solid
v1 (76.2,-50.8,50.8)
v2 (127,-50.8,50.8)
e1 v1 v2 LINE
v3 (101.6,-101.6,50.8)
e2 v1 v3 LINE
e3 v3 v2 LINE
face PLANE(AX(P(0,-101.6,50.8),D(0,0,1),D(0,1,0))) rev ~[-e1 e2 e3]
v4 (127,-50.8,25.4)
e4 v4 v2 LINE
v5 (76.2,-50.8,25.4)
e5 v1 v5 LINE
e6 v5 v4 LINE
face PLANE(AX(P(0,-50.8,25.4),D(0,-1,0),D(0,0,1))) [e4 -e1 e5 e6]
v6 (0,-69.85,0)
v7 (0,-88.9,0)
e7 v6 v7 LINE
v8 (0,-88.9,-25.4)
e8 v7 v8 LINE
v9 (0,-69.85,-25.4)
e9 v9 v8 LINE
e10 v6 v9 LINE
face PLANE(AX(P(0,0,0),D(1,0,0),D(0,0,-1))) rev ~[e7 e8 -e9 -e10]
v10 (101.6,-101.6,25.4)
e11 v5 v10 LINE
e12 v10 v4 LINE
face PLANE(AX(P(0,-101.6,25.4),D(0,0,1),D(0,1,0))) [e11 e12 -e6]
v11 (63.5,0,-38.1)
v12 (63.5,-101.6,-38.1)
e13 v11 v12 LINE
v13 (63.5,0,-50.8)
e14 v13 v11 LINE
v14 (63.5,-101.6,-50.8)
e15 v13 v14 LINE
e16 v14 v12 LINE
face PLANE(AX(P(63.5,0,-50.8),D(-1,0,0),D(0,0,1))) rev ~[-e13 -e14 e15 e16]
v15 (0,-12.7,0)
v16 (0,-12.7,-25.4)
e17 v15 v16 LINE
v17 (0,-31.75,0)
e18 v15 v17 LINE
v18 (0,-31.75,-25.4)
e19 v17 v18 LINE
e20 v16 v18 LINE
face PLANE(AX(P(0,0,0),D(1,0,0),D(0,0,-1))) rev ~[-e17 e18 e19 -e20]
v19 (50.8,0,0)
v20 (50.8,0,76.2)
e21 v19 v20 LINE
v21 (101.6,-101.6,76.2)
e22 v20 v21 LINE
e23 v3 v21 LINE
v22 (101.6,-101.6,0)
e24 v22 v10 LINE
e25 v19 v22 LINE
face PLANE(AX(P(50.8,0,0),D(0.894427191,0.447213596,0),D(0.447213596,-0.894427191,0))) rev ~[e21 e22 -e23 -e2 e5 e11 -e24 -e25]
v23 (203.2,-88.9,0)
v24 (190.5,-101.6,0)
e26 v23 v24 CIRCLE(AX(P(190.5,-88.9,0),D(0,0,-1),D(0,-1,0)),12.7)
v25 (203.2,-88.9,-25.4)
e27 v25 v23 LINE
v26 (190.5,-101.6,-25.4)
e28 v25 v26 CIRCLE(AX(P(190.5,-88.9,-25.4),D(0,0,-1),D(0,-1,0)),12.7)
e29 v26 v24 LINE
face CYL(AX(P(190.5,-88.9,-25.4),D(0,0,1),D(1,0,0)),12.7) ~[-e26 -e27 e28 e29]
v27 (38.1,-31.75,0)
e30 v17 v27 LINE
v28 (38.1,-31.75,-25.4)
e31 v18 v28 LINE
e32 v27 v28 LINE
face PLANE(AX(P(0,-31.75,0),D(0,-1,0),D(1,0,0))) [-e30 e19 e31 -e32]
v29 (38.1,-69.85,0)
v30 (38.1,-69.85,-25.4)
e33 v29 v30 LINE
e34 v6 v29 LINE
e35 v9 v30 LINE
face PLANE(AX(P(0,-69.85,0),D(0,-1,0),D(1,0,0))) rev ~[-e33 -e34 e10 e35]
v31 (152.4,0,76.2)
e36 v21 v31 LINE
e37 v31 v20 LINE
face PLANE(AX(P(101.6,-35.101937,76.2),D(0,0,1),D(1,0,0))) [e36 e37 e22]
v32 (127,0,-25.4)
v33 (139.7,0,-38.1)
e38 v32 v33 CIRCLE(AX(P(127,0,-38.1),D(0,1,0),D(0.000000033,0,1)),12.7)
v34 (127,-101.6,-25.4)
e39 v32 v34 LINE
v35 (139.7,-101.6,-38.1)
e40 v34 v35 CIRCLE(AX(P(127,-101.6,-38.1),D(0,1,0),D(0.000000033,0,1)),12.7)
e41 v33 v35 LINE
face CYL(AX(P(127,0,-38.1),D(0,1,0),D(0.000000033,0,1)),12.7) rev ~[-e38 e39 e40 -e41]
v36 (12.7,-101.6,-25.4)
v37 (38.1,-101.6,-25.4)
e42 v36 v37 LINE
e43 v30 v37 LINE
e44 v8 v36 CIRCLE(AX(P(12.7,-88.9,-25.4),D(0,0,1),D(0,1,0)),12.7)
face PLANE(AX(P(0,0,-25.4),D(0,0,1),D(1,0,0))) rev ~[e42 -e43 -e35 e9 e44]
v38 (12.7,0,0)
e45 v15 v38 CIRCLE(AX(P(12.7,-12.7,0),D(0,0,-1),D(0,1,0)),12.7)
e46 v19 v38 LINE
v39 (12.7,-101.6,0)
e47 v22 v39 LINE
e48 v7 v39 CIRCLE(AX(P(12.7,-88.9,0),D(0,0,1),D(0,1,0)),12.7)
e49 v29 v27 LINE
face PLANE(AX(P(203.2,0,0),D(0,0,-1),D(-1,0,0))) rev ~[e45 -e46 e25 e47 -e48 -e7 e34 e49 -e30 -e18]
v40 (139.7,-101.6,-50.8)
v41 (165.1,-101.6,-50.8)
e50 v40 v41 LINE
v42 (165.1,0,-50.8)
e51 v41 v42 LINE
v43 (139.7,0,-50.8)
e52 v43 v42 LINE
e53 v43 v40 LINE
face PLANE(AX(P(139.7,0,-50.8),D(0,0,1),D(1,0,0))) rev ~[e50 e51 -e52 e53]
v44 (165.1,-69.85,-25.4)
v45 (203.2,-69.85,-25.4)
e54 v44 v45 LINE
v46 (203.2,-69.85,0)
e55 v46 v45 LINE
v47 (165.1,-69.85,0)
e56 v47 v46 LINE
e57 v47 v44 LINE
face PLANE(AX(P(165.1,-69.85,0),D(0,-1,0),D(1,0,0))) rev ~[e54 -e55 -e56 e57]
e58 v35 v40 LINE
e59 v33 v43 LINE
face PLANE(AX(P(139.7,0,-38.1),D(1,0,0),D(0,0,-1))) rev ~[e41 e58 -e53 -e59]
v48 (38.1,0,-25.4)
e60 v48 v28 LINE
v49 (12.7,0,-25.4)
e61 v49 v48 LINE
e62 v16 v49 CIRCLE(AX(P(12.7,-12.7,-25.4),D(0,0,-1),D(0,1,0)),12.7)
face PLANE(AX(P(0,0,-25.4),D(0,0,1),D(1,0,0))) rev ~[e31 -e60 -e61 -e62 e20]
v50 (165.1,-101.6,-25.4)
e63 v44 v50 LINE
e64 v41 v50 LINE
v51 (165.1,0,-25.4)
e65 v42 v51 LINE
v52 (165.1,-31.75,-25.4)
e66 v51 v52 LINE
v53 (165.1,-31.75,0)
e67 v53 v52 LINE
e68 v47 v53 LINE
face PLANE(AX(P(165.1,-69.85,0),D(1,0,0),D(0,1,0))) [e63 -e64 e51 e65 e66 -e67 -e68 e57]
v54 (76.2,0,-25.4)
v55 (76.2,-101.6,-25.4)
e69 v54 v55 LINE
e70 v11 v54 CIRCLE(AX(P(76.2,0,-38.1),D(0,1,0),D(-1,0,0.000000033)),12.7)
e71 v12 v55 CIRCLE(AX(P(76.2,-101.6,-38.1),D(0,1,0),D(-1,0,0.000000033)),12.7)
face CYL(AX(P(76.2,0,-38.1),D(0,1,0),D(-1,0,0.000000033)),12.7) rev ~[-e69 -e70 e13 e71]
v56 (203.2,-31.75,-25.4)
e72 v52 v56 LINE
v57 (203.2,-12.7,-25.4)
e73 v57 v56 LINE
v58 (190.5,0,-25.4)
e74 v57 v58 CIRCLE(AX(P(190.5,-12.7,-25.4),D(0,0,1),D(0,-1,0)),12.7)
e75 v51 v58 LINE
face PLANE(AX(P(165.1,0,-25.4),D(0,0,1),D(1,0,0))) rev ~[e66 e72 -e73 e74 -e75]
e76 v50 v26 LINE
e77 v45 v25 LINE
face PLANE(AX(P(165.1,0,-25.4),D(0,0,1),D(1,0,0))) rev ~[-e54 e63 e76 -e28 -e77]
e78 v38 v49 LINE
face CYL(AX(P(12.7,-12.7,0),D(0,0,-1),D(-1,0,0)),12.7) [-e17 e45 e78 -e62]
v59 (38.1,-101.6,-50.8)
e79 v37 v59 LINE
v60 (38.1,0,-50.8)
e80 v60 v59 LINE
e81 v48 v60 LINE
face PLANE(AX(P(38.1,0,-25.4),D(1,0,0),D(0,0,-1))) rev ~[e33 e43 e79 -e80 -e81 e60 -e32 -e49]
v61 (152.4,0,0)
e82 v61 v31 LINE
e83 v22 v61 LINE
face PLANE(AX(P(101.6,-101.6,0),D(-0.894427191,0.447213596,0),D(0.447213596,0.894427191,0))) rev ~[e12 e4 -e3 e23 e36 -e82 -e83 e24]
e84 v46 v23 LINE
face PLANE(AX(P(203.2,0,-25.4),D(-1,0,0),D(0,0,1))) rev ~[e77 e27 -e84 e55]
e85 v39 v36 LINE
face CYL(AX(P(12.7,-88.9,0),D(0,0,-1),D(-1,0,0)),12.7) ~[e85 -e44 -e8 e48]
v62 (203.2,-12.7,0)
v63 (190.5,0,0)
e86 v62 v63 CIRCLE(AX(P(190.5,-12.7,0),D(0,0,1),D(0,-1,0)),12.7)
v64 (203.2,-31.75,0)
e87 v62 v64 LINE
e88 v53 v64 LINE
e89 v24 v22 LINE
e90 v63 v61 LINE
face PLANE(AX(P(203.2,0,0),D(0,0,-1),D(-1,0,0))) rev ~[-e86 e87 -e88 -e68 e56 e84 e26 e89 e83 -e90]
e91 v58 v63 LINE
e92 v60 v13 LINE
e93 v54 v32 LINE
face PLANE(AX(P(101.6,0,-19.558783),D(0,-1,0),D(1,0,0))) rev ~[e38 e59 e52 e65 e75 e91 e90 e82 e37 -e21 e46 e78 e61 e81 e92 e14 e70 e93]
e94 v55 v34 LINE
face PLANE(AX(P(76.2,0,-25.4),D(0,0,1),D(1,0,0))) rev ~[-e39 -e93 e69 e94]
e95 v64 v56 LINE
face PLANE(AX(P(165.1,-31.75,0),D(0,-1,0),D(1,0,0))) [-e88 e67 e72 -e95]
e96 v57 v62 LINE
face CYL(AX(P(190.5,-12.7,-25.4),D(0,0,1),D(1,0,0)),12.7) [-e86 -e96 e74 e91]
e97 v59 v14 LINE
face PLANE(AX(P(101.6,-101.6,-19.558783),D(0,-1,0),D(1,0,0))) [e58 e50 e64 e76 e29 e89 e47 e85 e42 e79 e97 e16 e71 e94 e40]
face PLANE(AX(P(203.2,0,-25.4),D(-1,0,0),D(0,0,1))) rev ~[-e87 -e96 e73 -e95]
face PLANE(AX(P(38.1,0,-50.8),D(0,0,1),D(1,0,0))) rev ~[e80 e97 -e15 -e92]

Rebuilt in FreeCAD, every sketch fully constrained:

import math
import FreeCAD as App
import Part
import Sketcher
from FreeCAD import Vector
Q = App.Units.Quantity


def edges_at(feature, points):
    """Names of the edges that pass closest to the given points."""
    edges = feature.Shape.Edges
    near = lambda p: min(range(len(edges)), key=lambda i: edges[i].distToShape(Part.Vertex(*p))[0])
    return sorted({f"Edge{near(p) + 1}" for p in points})


def add_polygon(sketch, points):
    """Adds a closed chain of lines whose ends are joined by coincident constraints."""
    first, n = sketch.GeometryCount, len(points)
    for a, b in zip(points, points[1:] + points[:1]):
        sketch.addGeometry(Part.LineSegment(App.Vector(*a, 0), App.Vector(*b, 0)), False)
    for i in range(n):
        sketch.addConstraint(Sketcher.Constraint("Coincident", first + i, 2, first + (i + 1) % n, 1))

doc = App.newDocument("Part")
body = doc.addObject("PartDesign::Body", "Body")

sketch1 = doc.addObject("Sketcher::SketchObject", "Sketch")
body.addObject(sketch1)
sketch1.AttachmentSupport = (doc.XZ_Plane, [""])
sketch1.MapMode = "FlatFace"
sketch1.addGeometry([
    Part.LineSegment(Vector(203, 0, 0), Vector(0, 0, 0)),
    Part.LineSegment(Vector(0, 0, 0), Vector(0, -25, 0)),
    Part.LineSegment(Vector(0, -25, 0), Vector(38, -25, 0)),
    Part.LineSegment(Vector(38, -25, 0), Vector(38, -51, 0)),
    Part.LineSegment(Vector(38, -51, 0), Vector(64, -51, 0)),
    Part.LineSegment(Vector(64, -51, 0), Vector(64, -38, 0)),
    Part.ArcOfCircle(Part.Circle(Vector(76, -38, 0), Vector(0, 0, 1), 13), math.radians(90), math.radians(180)),
    Part.LineSegment(Vector(76, -25, 0), Vector(127, -25, 0)),
    Part.ArcOfCircle(Part.Circle(Vector(127, -38, 0), Vector(0, 0, 1), 13), math.radians(0), math.radians(90)),
    Part.LineSegment(Vector(140, -38, 0), Vector(140, -51, 0)),
    Part.LineSegment(Vector(140, -51, 0), Vector(165, -51, 0)),
    Part.LineSegment(Vector(165, -51, 0), Vector(165, -25, 0)),
    Part.LineSegment(Vector(165, -25, 0), Vector(203, -25, 0)),
    Part.LineSegment(Vector(203, -25, 0), Vector(203, 0, 0)),
], False)
sketch1.addConstraint([
    Sketcher.Constraint("Coincident", 0, 2, 1, 1),
    Sketcher.Constraint("Coincident", 1, 2, 2, 1),
    Sketcher.Constraint("Coincident", 2, 2, 3, 1),
    Sketcher.Constraint("Coincident", 3, 2, 4, 1),
    Sketcher.Constraint("Coincident", 4, 2, 5, 1),
    Sketcher.Constraint("Tangent", 5, 2, 6, 2),
    Sketcher.Constraint("Tangent", 6, 1, 7, 1),
    Sketcher.Constraint("Tangent", 7, 2, 8, 2),
    Sketcher.Constraint("Tangent", 8, 1, 9, 1),
    Sketcher.Constraint("Coincident", 9, 2, 10, 1),
    Sketcher.Constraint("Coincident", 10, 2, 11, 1),
    Sketcher.Constraint("Coincident", 11, 2, 12, 1),
    Sketcher.Constraint("Coincident", 12, 2, 13, 1),
    Sketcher.Constraint("Coincident", 13, 2, 0, 1),
    Sketcher.Constraint("Horizontal", 0),
    Sketcher.Constraint("Vertical", 1),
    Sketcher.Constraint("Horizontal", 2),
    Sketcher.Constraint("Vertical", 3),
    Sketcher.Constraint("Horizontal", 4),
    Sketcher.Constraint("Vertical", 5),
    Sketcher.Constraint("Horizontal", 7),
    Sketcher.Constraint("Vertical", 9),
    Sketcher.Constraint("Horizontal", 10),
    Sketcher.Constraint("Vertical", 11),
    Sketcher.Constraint("Horizontal", 12),
    Sketcher.Constraint("Vertical", 13),
    Sketcher.Constraint("Coincident", 0, 2, -1, 1),
    Sketcher.Constraint("Equal", 6, 8),
    Sketcher.Constraint("Horizontal", 2, 2, 6, 1),
    Sketcher.Constraint("Horizontal", 4, 2, 9, 2),
    Sketcher.Constraint("Horizontal", 7, 2, 11, 2),
    Sketcher.Constraint("Equal", 4, 10),
    Sketcher.Constraint("Equal", 2, 12),
    Sketcher.Constraint("Equal", 10, 1),
    Sketcher.Constraint("Equal", 1, 3),
    Sketcher.Constraint("Radius", 6, Q("0.5 in")),
    Sketcher.Constraint("DistanceX", 0, 2, 0, 1, Q("8 in")),
    Sketcher.Constraint("DistanceX", 4, 1, 4, 2, Q("1 in")),
    Sketcher.Constraint("DistanceX", 7, 1, 7, 2, Q("2 in")),
])
pad1 = doc.addObject("PartDesign::Pad", "Pad")
body.addObject(pad1)
pad1.Profile = sketch1
pad1.Length = Q("4 in")

sketch2 = doc.addObject("Sketcher::SketchObject", "Sketch001")
body.addObject(sketch2)
sketch2.AttachmentSupport = (doc.XY_Plane, [""])
sketch2.MapMode = "FlatFace"
add_polygon(sketch2, [(152, 0), (51, 0), (102, -102)])
sketch2.addConstraint([
    Sketcher.Constraint("Horizontal", 0),
    Sketcher.Constraint("PointOnObject", 0, 2, -1),
    Sketcher.Constraint("Equal", 1, 2),
    Sketcher.Constraint("DistanceX", 0, 2, 0, 1, Q("4 in")),
    Sketcher.Constraint("DistanceX", -1, 1, 0, 2, Q("2 in")),
    Sketcher.Constraint("DistanceY", 1, 2, -1, 1, Q("4 in")),
])
pad2 = doc.addObject("PartDesign::Pad", "Pad001")
body.addObject(pad2)
pad2.Profile = sketch2
pad2.Length = Q("3 in")

sketch3 = doc.addObject("Sketcher::SketchObject", "Sketch002")
body.addObject(sketch3)
sketch3.AttachmentSupport = (doc.YZ_Plane, [""])
sketch3.MapMode = "FlatFace"
add_polygon(sketch3, [(-102, 51), (-102, 25), (-51, 25), (-51, 51)])
sketch3.addConstraint([
    Sketcher.Constraint("Vertical", 0),
    Sketcher.Constraint("Horizontal", 1),
    Sketcher.Constraint("Vertical", 2),
    Sketcher.Constraint("Horizontal", 3),
    Sketcher.Constraint("DistanceX", 1, 1, 1, 2, Q("2 in")),
    Sketcher.Constraint("DistanceY", 0, 2, 0, 1, Q("1 in")),
    Sketcher.Constraint("DistanceX", 0, 2, -1, 1, Q("4 in")),
    Sketcher.Constraint("DistanceY", -1, 1, 0, 2, Q("1 in")),
])
pocket1 = doc.addObject("PartDesign::Pocket", "Pocket")
body.addObject(pocket1)
pocket1.Profile = sketch3
pocket1.Type = "ThroughAll"
pocket1.Reversed = True

sketch4 = doc.addObject("Sketcher::SketchObject", "Sketch003")
body.addObject(sketch4)
sketch4.AttachmentSupport = (doc.XY_Plane, [""])
sketch4.MapMode = "FlatFace"
add_polygon(sketch4, [(0, -32), (0, -70), (38, -70), (38, -32)])
add_polygon(sketch4, [(165, -32), (165, -70), (203, -70), (203, -32)])
sketch4.addConstraint([
    Sketcher.Constraint("Vertical", 0),
    Sketcher.Constraint("Horizontal", 1),
    Sketcher.Constraint("Vertical", 2),
    Sketcher.Constraint("Horizontal", 3),
    Sketcher.Constraint("Vertical", 4),
    Sketcher.Constraint("Horizontal", 5),
    Sketcher.Constraint("Vertical", 6),
    Sketcher.Constraint("Horizontal", 7),
    Sketcher.Constraint("PointOnObject", 0, 2, -2),
    Sketcher.Constraint("Horizontal", 1, 2, 4, 2),
    Sketcher.Constraint("Horizontal", 3, 2, 6, 2),
    Sketcher.Constraint("Equal", 3, 5),
    Sketcher.Constraint("Equal", 7, 0),
    Sketcher.Constraint("DistanceX", 1, 1, 1, 2, Q("1.5 in")),
    Sketcher.Constraint("DistanceX", -1, 1, 5, 2, Q("8 in")),
    Sketcher.Constraint("DistanceY", 0, 2, -1, 1, Q("2.75 in")),
])
pocket2 = doc.addObject("PartDesign::Pocket", "Pocket001")
body.addObject(pocket2)
pocket2.Profile = sketch4
pocket2.Type = "ThroughAll"
doc.recompute()

fillet = doc.addObject("PartDesign::Fillet", "Fillet")
body.addObject(fillet)
fillet.Base = (pocket2, edges_at(pocket2, [
    (0, -101.6, -12.7),
    (0, 0, -12.7),
    (203.2, 0, -12.7),
    (203.2, -101.6, -12.7),
]))
fillet.Radius = Q("0.5 in")

doc.recompute()
